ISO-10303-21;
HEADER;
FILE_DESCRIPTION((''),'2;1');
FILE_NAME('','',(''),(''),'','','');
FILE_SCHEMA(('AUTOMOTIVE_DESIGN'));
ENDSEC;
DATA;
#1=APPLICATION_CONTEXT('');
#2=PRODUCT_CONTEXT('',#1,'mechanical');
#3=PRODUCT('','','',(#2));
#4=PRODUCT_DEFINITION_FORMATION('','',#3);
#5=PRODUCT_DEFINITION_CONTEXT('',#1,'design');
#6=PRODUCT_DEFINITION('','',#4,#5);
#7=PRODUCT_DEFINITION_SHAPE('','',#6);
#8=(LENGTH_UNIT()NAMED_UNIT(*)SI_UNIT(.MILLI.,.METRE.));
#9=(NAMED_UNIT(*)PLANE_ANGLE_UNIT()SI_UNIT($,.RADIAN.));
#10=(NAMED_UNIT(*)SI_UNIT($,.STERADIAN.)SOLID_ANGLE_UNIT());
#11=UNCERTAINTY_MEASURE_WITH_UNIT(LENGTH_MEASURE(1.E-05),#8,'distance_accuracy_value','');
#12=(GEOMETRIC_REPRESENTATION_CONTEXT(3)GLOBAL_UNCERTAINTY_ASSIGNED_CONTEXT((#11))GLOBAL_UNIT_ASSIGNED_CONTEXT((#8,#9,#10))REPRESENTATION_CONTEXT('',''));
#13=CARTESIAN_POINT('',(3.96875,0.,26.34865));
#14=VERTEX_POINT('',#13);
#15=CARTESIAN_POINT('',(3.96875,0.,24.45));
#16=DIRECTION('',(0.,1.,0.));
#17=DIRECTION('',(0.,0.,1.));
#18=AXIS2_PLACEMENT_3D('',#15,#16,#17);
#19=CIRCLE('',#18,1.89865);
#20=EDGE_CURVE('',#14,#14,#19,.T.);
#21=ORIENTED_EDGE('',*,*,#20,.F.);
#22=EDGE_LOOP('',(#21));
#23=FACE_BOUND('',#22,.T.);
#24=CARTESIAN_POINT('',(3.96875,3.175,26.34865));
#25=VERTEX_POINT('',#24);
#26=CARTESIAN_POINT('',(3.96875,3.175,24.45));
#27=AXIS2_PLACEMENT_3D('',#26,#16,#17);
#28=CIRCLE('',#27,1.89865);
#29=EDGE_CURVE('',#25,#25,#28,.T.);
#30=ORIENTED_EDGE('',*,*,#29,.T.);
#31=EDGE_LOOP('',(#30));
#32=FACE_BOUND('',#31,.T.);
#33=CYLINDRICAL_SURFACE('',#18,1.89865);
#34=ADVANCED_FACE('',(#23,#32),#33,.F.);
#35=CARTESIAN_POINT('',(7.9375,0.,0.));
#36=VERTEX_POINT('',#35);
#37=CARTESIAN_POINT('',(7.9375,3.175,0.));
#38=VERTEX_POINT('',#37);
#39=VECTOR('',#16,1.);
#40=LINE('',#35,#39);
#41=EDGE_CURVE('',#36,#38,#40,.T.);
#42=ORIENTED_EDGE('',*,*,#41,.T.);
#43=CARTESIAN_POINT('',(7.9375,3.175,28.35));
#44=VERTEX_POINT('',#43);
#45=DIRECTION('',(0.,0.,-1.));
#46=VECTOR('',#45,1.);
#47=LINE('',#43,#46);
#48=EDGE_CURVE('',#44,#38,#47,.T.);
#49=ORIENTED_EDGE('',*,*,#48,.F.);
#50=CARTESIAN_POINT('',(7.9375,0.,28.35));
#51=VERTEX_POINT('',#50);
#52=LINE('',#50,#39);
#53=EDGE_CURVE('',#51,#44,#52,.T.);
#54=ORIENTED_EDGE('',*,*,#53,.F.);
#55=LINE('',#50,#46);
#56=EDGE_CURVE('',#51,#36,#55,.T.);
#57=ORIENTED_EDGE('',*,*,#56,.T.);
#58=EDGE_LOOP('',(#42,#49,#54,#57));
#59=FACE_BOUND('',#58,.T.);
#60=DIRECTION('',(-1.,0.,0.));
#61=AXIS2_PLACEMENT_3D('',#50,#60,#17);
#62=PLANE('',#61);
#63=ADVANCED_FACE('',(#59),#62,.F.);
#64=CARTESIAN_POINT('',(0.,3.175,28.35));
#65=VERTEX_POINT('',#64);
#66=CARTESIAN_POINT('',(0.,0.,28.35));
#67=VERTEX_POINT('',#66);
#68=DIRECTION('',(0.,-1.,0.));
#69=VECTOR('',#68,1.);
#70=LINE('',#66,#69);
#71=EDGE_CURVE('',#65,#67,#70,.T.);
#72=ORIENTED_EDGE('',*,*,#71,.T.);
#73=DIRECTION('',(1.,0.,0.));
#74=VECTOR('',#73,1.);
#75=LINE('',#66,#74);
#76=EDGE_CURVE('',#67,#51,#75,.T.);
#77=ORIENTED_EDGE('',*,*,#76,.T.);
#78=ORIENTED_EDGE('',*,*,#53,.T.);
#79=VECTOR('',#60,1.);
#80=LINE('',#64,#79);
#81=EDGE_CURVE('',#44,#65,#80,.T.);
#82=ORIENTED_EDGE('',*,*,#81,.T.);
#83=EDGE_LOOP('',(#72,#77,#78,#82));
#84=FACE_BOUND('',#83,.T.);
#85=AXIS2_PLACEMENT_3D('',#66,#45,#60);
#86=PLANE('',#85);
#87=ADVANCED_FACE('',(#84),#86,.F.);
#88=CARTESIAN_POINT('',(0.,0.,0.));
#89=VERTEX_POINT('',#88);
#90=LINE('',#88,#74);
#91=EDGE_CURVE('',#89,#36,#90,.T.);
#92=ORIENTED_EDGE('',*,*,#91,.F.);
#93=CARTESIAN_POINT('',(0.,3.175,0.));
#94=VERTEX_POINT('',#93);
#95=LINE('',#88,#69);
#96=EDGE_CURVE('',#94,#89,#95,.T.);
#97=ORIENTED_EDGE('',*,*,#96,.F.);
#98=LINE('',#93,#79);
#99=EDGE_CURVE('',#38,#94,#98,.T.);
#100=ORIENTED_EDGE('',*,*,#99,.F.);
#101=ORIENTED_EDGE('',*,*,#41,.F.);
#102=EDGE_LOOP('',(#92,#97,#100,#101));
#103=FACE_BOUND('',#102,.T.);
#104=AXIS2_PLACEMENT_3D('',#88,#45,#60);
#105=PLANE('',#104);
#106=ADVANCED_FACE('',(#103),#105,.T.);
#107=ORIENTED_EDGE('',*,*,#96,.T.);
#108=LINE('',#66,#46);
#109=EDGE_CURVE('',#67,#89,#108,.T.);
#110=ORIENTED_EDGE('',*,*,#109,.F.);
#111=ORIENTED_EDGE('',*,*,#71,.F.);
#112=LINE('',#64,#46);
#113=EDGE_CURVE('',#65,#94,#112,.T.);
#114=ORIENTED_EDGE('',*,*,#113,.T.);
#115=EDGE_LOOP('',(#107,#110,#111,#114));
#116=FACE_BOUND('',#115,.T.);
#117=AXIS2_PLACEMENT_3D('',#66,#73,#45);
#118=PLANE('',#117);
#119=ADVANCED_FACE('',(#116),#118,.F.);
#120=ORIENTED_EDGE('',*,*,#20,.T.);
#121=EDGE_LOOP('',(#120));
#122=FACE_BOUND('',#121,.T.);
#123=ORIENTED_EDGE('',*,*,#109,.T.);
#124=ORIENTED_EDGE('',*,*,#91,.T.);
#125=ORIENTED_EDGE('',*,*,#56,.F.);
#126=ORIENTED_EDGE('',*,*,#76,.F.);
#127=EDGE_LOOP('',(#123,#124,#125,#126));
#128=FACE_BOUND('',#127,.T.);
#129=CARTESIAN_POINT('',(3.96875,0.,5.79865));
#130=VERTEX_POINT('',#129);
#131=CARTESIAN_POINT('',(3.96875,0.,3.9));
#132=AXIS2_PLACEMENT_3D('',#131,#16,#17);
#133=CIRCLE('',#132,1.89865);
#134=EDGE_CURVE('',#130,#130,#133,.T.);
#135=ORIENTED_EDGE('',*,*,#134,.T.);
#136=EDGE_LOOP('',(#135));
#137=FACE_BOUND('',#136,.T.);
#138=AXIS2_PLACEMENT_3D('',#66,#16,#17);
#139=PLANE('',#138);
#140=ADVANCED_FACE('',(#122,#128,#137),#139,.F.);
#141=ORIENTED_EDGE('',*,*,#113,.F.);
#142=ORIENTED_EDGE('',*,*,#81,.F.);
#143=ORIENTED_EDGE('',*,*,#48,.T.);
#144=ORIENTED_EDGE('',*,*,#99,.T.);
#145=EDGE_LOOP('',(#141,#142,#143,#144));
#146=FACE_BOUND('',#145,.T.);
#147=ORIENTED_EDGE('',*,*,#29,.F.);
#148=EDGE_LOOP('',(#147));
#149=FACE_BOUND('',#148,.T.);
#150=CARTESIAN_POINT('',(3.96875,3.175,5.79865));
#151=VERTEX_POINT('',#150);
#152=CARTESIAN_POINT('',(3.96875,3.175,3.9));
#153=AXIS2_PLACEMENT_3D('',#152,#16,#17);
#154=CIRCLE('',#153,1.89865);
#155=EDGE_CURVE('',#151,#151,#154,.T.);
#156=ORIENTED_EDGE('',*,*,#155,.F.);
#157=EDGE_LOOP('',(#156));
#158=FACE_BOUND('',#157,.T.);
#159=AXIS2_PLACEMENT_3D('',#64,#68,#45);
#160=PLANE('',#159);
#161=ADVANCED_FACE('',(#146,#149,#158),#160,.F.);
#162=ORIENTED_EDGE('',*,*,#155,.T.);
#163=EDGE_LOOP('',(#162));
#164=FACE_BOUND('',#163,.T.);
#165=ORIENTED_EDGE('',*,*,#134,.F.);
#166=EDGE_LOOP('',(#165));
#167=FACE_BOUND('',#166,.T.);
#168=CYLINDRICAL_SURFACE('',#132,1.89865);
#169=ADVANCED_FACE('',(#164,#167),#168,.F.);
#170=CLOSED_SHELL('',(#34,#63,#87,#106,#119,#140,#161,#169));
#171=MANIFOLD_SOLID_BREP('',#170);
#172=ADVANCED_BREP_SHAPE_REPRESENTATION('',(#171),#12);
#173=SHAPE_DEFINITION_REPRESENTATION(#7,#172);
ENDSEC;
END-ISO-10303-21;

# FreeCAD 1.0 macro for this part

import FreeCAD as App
import Part
import Sketcher
Q = App.Units.Quantity


def add_polygon(sketch, points):
    """Adds a closed chain of lines whose ends are joined by coincident constraints."""
    first, n = sketch.GeometryCount, len(points)
    for a, b in zip(points, points[1:] + points[:1]):
        sketch.addGeometry(Part.LineSegment(App.Vector(*a, 0), App.Vector(*b, 0)), False)
    for i in range(n):
        sketch.addConstraint(Sketcher.Constraint("Coincident", first + i, 2, first + (i + 1) % n, 1))

doc = App.newDocument("Part")
params = doc.addObject("Spreadsheet::Sheet", "Params")
for row, (alias, value) in enumerate([
    ("sketch1_width", "0.3125 in"),
    ("sketch1_height", "0.125 in"),
    ("pad1_length", "28.35 mm"),
], start=1):
    params.set(f"A{row}", alias)
    params.set(f"B{row}", "=" + value)
    params.setAlias(f"B{row}", alias)

body = doc.addObject("PartDesign::Body", "Body")

sketch1 = body.newObject("Sketcher::SketchObject", "Sketch")
sketch1.AttachmentSupport = (doc.getObject("XY_Plane"), [""])
sketch1.MapMode = "FlatFace"
add_polygon(sketch1, [(0, 3.2), (0, 0), (7.9, 0), (7.9, 3.2)])
sketch1.addConstraint(Sketcher.Constraint("Vertical", 0))
sketch1.addConstraint(Sketcher.Constraint("Horizontal", 1))
sketch1.addConstraint(Sketcher.Constraint("Vertical", 2))
sketch1.addConstraint(Sketcher.Constraint("Horizontal", 3))
sketch1.addConstraint(Sketcher.Constraint("Coincident", 0, 2, -1, 1))
sketch1.addConstraint(Sketcher.Constraint("DistanceX", 1, 1, 1, 2, Q("0.3125 in")))
sketch1.addConstraint(Sketcher.Constraint("DistanceY", 0, 2, 0, 1, Q("0.125 in")))
sketch1.setExpression("Constraints[9]", "Params.sketch1_width")
sketch1.setExpression("Constraints[10]", "Params.sketch1_height")
pad1 = body.newObject("PartDesign::Pad", "Pad")
pad1.Profile = sketch1
pad1.setExpression("Length", "Params.pad1_length")

sketch2 = body.newObject("Sketcher::SketchObject", "Sketch001")
sketch2.AttachmentSupport = (doc.getObject("XZ_Plane"), [""])
sketch2.MapMode = "FlatFace"
sketch2.AttachmentOffset = App.Placement(App.Vector(0, 0, -0.125 * 25.4), App.Rotation())
sketch2.addGeometry(Part.Circle(App.Vector(4, 3.9, 0), App.Vector(0, 0, 1), 1.9), False)
sketch2.addGeometry(Part.Circle(App.Vector(4, 24.4, 0), App.Vector(0, 0, 1), 1.9), False)
sketch2.addConstraint(Sketcher.Constraint("Equal", 0, 1))
sketch2.addConstraint(Sketcher.Constraint("Vertical", 0, 3, 1, 3))
sketch2.addConstraint(Sketcher.Constraint("Diameter", 0, Q("0.1495 in")))
sketch2.addConstraint(Sketcher.Constraint("DistanceX", -1, 1, 0, 3, Q("0.15625 in")))
sketch2.addConstraint(Sketcher.Constraint("DistanceY", -1, 1, 0, 3, 3.9))
sketch2.addConstraint(Sketcher.Constraint("DistanceY", -1, 1, 1, 3, 24.45))
pocket1 = body.newObject("PartDesign::Pocket", "Pocket")
pocket1.Profile = sketch2
pocket1.Type = "ThroughAll"
pocket1.Reversed = True

doc.recompute()
